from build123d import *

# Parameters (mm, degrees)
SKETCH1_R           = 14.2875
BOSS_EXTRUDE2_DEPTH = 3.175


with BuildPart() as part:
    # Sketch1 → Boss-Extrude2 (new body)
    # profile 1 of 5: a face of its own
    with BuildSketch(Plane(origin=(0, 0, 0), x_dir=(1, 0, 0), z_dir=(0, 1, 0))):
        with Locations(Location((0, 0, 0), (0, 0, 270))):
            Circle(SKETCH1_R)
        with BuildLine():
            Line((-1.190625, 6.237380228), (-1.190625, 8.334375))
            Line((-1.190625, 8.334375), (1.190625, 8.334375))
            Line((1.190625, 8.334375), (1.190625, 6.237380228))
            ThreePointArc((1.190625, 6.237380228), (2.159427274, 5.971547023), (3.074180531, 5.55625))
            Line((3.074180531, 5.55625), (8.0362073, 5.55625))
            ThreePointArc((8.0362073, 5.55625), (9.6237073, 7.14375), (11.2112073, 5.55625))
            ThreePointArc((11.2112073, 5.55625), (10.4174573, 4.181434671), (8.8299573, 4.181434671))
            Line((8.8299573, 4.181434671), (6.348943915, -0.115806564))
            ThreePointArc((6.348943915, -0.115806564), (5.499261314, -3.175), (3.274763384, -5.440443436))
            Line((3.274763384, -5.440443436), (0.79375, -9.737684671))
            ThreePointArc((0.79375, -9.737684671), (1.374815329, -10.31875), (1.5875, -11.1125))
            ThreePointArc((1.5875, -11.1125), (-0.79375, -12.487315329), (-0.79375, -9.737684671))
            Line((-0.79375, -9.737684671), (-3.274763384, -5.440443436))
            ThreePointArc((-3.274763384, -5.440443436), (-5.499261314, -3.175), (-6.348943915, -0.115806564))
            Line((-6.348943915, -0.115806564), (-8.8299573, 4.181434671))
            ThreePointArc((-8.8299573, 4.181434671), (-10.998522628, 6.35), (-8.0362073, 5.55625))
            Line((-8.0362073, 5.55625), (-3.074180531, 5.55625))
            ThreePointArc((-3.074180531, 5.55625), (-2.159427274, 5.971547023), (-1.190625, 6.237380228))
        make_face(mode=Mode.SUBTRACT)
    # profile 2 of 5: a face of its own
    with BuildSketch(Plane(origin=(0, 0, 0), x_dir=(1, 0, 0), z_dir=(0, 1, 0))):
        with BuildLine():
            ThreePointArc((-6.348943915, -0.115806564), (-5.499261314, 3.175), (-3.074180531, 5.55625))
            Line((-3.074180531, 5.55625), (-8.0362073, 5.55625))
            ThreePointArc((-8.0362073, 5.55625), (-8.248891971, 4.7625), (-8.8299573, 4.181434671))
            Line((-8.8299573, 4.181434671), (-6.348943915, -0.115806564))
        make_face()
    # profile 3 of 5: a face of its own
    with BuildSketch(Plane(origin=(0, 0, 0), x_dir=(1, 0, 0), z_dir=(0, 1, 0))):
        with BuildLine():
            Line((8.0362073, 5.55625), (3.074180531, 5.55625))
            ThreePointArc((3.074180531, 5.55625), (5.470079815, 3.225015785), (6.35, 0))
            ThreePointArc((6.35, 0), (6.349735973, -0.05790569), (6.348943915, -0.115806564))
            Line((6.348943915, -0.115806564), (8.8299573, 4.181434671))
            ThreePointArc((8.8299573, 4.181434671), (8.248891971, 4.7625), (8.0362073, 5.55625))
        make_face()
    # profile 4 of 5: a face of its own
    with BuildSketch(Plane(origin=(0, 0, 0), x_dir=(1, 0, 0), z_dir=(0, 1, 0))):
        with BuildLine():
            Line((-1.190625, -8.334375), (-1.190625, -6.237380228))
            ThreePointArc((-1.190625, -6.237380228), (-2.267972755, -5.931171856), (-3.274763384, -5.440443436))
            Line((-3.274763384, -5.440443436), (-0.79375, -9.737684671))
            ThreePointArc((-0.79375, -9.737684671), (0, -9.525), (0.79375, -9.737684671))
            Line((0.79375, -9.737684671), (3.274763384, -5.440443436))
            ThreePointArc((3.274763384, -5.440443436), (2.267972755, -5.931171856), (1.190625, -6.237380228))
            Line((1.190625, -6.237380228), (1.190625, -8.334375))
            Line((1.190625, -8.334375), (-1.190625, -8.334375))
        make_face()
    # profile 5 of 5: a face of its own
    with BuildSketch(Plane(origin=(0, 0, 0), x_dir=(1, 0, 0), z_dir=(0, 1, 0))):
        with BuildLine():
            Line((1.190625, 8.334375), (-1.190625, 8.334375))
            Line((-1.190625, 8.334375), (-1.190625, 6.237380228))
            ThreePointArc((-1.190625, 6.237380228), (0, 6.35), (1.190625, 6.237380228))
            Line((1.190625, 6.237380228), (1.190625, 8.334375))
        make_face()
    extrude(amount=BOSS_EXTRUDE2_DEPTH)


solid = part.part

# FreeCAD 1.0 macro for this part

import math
import FreeCAD as App
import Part
import Sketcher
from FreeCAD import Vector
Q = App.Units.Quantity

doc = App.newDocument("Part")
body = doc.addObject("PartDesign::Body", "Body")

# Sketch on XZ plane
sketch1 = body.newObject("Sketcher::SketchObject", "Sketch")
sketch1.AttachmentSupport = (doc.getObject("XZ_Plane"), [""])
sketch1.MapMode = "FlatFace"
sketch1.addGeometry([
    Part.Circle(Vector(0, 0, 0), Vector(0, 0, 1), 14.29),  # 0
    Part.ArcOfCircle(Part.Circle(Vector(0, 0, 0), Vector(0, 0, 1), 6.35), math.radians(-118.96), math.radians(-100.81)),  # 1
    Part.ArcOfCircle(Part.Circle(Vector(0, 0, 0), Vector(0, 0, 1), 6.35), math.radians(-101), math.radians(-79)),  # 2
    Part.ArcOfCircle(Part.Circle(Vector(0, 0, 0), Vector(0, 0, 1), 6.35), math.radians(-79.19), math.radians(-61.04)),  # 3
    Part.ArcOfCircle(Part.Circle(Vector(0, 0, 0), Vector(0, 0, 1), 6.35), math.radians(-61), math.radians(0)),  # 4
    Part.ArcOfCircle(Part.Circle(Vector(0, 0, 0), Vector(0, 0, 1), 6.35), math.radians(0), math.radians(1.04)),  # 5
    Part.ArcOfCircle(Part.Circle(Vector(0, 0, 0), Vector(0, 0, 1), 6.35), math.radians(1), math.radians(59)),  # 6
    Part.ArcOfCircle(Part.Circle(Vector(0, 0, 0), Vector(0, 0, 1), 6.35), math.radians(59), math.radians(79)),  # 7
    Part.LineSegment(Vector(1.19, 6.24, 0), Vector(1.19, 8.33, 0)),  # 8
    Part.LineSegment(Vector(1.19, 8.33, 0), Vector(-1.19, 8.33, 0)),  # 9
    Part.LineSegment(Vector(-1.19, 8.33, 0), Vector(-1.19, 6.24, 0)),  # 10
    Part.ArcOfCircle(Part.Circle(Vector(0, 0, 0), Vector(0, 0, 1), 6.35), math.radians(101), math.radians(121)),  # 11
    Part.ArcOfCircle(Part.Circle(Vector(0, 0, 0), Vector(0, 0, 1), 6.35), math.radians(121), math.radians(179)),  # 12
    Part.ArcOfCircle(Part.Circle(Vector(0, 0, 0), Vector(0, 0, 1), 6.35), math.radians(179), math.radians(241)),  # 13
    Part.ArcOfCircle(Part.Circle(Vector(-9.62, -5.56, 0), Vector(0, 0, 1), 1.59), math.radians(60), math.radians(360)),  # 14
    Part.ArcOfCircle(Part.Circle(Vector(-9.62, -5.56, 0), Vector(0, 0, 1), 1.59), math.radians(0), math.radians(60)),  # 15
    Part.ArcOfCircle(Part.Circle(Vector(0, 11.11, 0), Vector(0, 0, 1), 1.59), math.radians(0), math.radians(240)),  # 16
    Part.ArcOfCircle(Part.Circle(Vector(0, 11.11, 0), Vector(0, 0, 1), 1.59), math.radians(-120), math.radians(-60)),  # 17
    Part.ArcOfCircle(Part.Circle(Vector(0, 11.11, 0), Vector(0, 0, 1), 1.59), math.radians(-60), math.radians(0)),  # 18
    Part.ArcOfCircle(Part.Circle(Vector(9.62, -5.56, 0), Vector(0, 0, 1), 1.59), math.radians(0), math.radians(120)),  # 19
    Part.ArcOfCircle(Part.Circle(Vector(9.62, -5.56, 0), Vector(0, 0, 1), 1.59), math.radians(120), math.radians(180)),  # 20
    Part.ArcOfCircle(Part.Circle(Vector(9.62, -5.56, 0), Vector(0, 0, 1), 1.59), math.radians(180), math.radians(360)),  # 21
], False)
sketch1.addConstraint([
    Sketcher.Constraint("Tangent", 1, 2, 2, 1),
    Sketcher.Constraint("Tangent", 2, 2, 3, 1),
    Sketcher.Constraint("Tangent", 3, 2, 4, 1),
    Sketcher.Constraint("Tangent", 4, 2, 5, 1),
    Sketcher.Constraint("Tangent", 5, 2, 6, 1),
    Sketcher.Constraint("Tangent", 6, 2, 7, 1),
    Sketcher.Constraint("Coincident", 7, 2, 8, 1),
    Sketcher.Constraint("Coincident", 8, 2, 9, 1),
    Sketcher.Constraint("Coincident", 9, 2, 10, 1),
    Sketcher.Constraint("Coincident", 10, 2, 11, 1),
    Sketcher.Constraint("Tangent", 11, 2, 12, 1),
    Sketcher.Constraint("Tangent", 12, 2, 13, 1),
    Sketcher.Constraint("Tangent", 13, 2, 1, 1),
    Sketcher.Constraint("Tangent", 14, 1, 15, 2),
    Sketcher.Constraint("Coincident", 15, 1, 14, 2),
    Sketcher.Constraint("Tangent", 16, 2, 17, 1),
    Sketcher.Constraint("Tangent", 17, 2, 18, 1),
    Sketcher.Constraint("Tangent", 18, 2, 16, 1),
    Sketcher.Constraint("Tangent", 19, 2, 20, 1),
    Sketcher.Constraint("Tangent", 20, 2, 21, 1),
    Sketcher.Constraint("Tangent", 21, 2, 19, 1),
    Sketcher.Constraint("Vertical", 8),
    Sketcher.Constraint("Horizontal", 9),
    Sketcher.Constraint("Vertical", 10),
    Sketcher.Constraint("Coincident", 0, 3, -1, 1),
    Sketcher.Constraint("Coincident", 1, 3, -1, 1),
    Sketcher.Constraint("Coincident", 3, 3, -1, 1),
    Sketcher.Constraint("Coincident", 5, 3, -1, 1),
    Sketcher.Constraint("Coincident", 7, 3, -1, 1),
    Sketcher.Constraint("Coincident", 11, 3, -1, 1),
    Sketcher.Constraint("Equal", 7, 11),
    Sketcher.Constraint("Equal", 15, 16),
    Sketcher.Constraint("Equal", 18, 19),
    Sketcher.Constraint("Symmetric", 14, 3, 19, 3, -2),
    Sketcher.Constraint("Symmetric", 16, 2, 17, 2, -2),
    Sketcher.Constraint("PointOnObject", 4, 2, -1),
    Sketcher.Constraint("Horizontal", 1, 2, 2, 2),
    Sketcher.Constraint("Horizontal", 21, 3, 3, 2),
    Sketcher.Constraint("Horizontal", 7, 2, 10, 2),
    Sketcher.Constraint("Horizontal", 6, 2, 11, 2),
    Sketcher.Constraint("Horizontal", 5, 2, 12, 2),
    Sketcher.Constraint("Horizontal", 3, 2, 13, 2),
    Sketcher.Constraint("Horizontal", 13, 2, 15, 1),
    Sketcher.Constraint("Horizontal", 17, 3, 18, 2),
    Sketcher.Constraint("Horizontal", 14, 1, 19, 2),
    Sketcher.Constraint("Horizontal", 15, 1, 20, 2),
    Sketcher.Constraint("Horizontal", 20, 2, 21, 2),
    Sketcher.Constraint("Vertical", 2, 2, 7, 2),
    Sketcher.Constraint("Radius", 1, Q("0.25 in")),
    Sketcher.Constraint("Diameter", 0, Q("1.125 in")),
    Sketcher.Constraint("Radius", 14, Q("0.0625 in")),
    Sketcher.Constraint("DistanceX", 9, 2, 9, 1, Q("0.09375 in")),
    Sketcher.Constraint("DistanceY", 14, 3, -1, 1, Q("0.21875 in")),
    Sketcher.Constraint("DistanceY", -1, 1, 16, 3, Q("0.4375 in")),
    Sketcher.Constraint("DistanceY", -1, 1, 8, 2, Q("0.328125 in")),
    Sketcher.Constraint("DistanceX", 16, 2, -1, 1, Q("0.03125 in")),
    Sketcher.Constraint("DistanceX", 15, 3, 14, 1, Q("0.03125 in")),
    Sketcher.Constraint("DistanceX", 6, 2, 5, 2, 3.074181),
    Sketcher.Constraint("DistanceX", 7, 2, 6, 2, 2.084138),
    Sketcher.Constraint("DistanceX", 14, 3, -1, 1, 9.623707),
])
pad1 = body.newObject("PartDesign::Pad", "Pad")
pad1.Profile = sketch1
pad1.Length = Q("0.125 in")
pad1.Reversed = True

doc.recompute()
